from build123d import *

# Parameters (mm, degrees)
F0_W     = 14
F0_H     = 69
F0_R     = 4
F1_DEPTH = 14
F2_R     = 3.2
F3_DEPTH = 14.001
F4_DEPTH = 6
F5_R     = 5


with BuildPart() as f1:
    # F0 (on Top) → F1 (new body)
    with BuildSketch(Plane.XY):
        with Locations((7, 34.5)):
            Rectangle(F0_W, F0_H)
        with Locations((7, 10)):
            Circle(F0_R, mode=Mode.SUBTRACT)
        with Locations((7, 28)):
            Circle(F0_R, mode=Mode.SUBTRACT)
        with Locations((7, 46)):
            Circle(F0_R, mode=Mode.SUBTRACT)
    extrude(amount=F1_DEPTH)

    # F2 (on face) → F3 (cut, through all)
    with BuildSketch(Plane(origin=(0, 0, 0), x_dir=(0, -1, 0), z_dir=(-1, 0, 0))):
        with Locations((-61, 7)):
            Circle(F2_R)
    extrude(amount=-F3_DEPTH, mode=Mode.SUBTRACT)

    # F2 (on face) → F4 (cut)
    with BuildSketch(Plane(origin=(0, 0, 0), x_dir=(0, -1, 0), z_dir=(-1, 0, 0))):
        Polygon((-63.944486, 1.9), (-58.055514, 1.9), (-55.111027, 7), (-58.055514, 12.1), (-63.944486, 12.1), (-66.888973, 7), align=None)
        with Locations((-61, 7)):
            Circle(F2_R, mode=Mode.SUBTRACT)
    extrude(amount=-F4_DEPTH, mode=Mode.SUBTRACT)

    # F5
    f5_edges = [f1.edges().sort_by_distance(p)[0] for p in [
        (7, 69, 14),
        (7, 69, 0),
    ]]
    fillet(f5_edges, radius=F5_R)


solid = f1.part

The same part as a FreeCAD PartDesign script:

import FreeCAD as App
import Part
import Sketcher
Q = App.Units.Quantity


def edges_at(feature, points):
    """Names of the edges that pass closest to the given points."""
    edges = feature.Shape.Edges
    near = lambda p: min(range(len(edges)), key=lambda i: edges[i].distToShape(Part.Vertex(*p))[0])
    return sorted({f"Edge{near(p) + 1}" for p in points})


def add_polygon(sketch, points):
    """Adds a closed chain of lines whose ends are joined by coincident constraints."""
    first, n = sketch.GeometryCount, len(points)
    for a, b in zip(points, points[1:] + points[:1]):
        sketch.addGeometry(Part.LineSegment(App.Vector(*a, 0), App.Vector(*b, 0)), False)
    for i in range(n):
        sketch.addConstraint(Sketcher.Constraint("Coincident", first + i, 2, first + (i + 1) % n, 1))

doc = App.newDocument("Part")
body = doc.addObject("PartDesign::Body", "Body")

sketch1 = body.newObject("Sketcher::SketchObject", "Sketch")
sketch1.AttachmentSupport = (doc.getObject("XY_Plane"), [""])
sketch1.MapMode = "FlatFace"
add_polygon(sketch1, [(0, 69), (0, 0), (14, 0), (14, 69)])
sketch1.addGeometry(Part.Circle(App.Vector(7, 10, 0), App.Vector(0, 0, 1), 4), False)
sketch1.addGeometry(Part.Circle(App.Vector(7, 28, 0), App.Vector(0, 0, 1), 4), False)
sketch1.addGeometry(Part.Circle(App.Vector(7, 46, 0), App.Vector(0, 0, 1), 4), False)
sketch1.addConstraint([
    Sketcher.Constraint("Vertical", 0),
    Sketcher.Constraint("Horizontal", 1),
    Sketcher.Constraint("Vertical", 2),
    Sketcher.Constraint("Horizontal", 3),
    Sketcher.Constraint("Coincident", 0, 2, -1, 1),
    Sketcher.Constraint("Equal", 4, 5),
    Sketcher.Constraint("Equal", 5, 6),
    Sketcher.Constraint("Vertical", 4, 3, 5, 3),
    Sketcher.Constraint("Vertical", 5, 3, 6, 3),
    Sketcher.Constraint("Diameter", 4, 8.0),
    Sketcher.Constraint("DistanceX", 1, 1, 1, 2, 14.0),
    Sketcher.Constraint("DistanceY", 0, 2, 0, 1, 69.0),
    Sketcher.Constraint("DistanceX", -1, 1, 4, 3, 7.0),
    Sketcher.Constraint("DistanceY", -1, 1, 4, 3, 10.0),
    Sketcher.Constraint("DistanceY", -1, 1, 5, 3, 28.0),
    Sketcher.Constraint("DistanceY", -1, 1, 6, 3, 46.0),
])
pad1 = body.newObject("PartDesign::Pad", "Pad")
pad1.Profile = sketch1
pad1.Length = 14

sketch2 = body.newObject("Sketcher::SketchObject", "Sketch001")
sketch2.AttachmentSupport = (doc.getObject("YZ_Plane"), [""])
sketch2.MapMode = "FlatFace"
sketch2.addGeometry(Part.Circle(App.Vector(61, 7, 0), App.Vector(0, 0, 1), 3.2), False)
sketch2.addConstraint([
    Sketcher.Constraint("Diameter", 0, 6.4),
    Sketcher.Constraint("DistanceX", -1, 1, 0, 3, 61.0),
    Sketcher.Constraint("DistanceY", -1, 1, 0, 3, 7.0),
])
pocket1 = body.newObject("PartDesign::Pocket", "Pocket")
pocket1.Profile = sketch2
pocket1.Type = "ThroughAll"
pocket1.Reversed = True

sketch3 = body.newObject("Sketcher::SketchObject", "Sketch002")
sketch3.AttachmentSupport = (doc.getObject("YZ_Plane"), [""])
sketch3.MapMode = "FlatFace"
add_polygon(sketch3, [(63.9, 1.9), (58.1, 1.9), (55.1, 7), (58.1, 12.1), (63.9, 12.1), (66.9, 7)])
sketch3.addGeometry(Part.Circle(App.Vector(61, 7, 0), App.Vector(0, 0, 1), 3.2), False)
sketch3.addConstraint([
    Sketcher.Constraint("Horizontal", 0),
    Sketcher.Constraint("Horizontal", 3),
    Sketcher.Constraint("Parallel", 1, 4),
    Sketcher.Constraint("Parallel", 2, 5),
    Sketcher.Constraint("Horizontal", 6, 3, 1, 2),
    Sketcher.Constraint("Horizontal", 1, 2, 4, 2),
    Sketcher.Constraint("Vertical", 0, 2, 2, 2),
    Sketcher.Constraint("Vertical", 3, 2, 5, 2),
    Sketcher.Constraint("Diameter", 6, 6.4),
    Sketcher.Constraint("Angle", 1, Q("120.000005 deg")),
    Sketcher.Constraint("DistanceX", -1, 1, 6, 3, 61.0),
    Sketcher.Constraint("DistanceY", -1, 1, 6, 3, 7.0),
    Sketcher.Constraint("DistanceY", -1, 1, 0, 2, 1.9),
    Sketcher.Constraint("DistanceX", 0, 2, 0, 1, 5.888972),
    Sketcher.Constraint("DistanceX", -1, 1, 0, 2, 58.055514),
])
pocket2 = body.newObject("PartDesign::Pocket", "Pocket001")
pocket2.Profile = sketch3
pocket2.Length = 6
pocket2.Reversed = True
doc.recompute()

fillet = body.newObject("PartDesign::Fillet", "Fillet")
fillet.Base = (pocket2, edges_at(pocket2, [(7, 69, 14), (7, 69, 0)]))
fillet.Radius = 5

doc.recompute()
